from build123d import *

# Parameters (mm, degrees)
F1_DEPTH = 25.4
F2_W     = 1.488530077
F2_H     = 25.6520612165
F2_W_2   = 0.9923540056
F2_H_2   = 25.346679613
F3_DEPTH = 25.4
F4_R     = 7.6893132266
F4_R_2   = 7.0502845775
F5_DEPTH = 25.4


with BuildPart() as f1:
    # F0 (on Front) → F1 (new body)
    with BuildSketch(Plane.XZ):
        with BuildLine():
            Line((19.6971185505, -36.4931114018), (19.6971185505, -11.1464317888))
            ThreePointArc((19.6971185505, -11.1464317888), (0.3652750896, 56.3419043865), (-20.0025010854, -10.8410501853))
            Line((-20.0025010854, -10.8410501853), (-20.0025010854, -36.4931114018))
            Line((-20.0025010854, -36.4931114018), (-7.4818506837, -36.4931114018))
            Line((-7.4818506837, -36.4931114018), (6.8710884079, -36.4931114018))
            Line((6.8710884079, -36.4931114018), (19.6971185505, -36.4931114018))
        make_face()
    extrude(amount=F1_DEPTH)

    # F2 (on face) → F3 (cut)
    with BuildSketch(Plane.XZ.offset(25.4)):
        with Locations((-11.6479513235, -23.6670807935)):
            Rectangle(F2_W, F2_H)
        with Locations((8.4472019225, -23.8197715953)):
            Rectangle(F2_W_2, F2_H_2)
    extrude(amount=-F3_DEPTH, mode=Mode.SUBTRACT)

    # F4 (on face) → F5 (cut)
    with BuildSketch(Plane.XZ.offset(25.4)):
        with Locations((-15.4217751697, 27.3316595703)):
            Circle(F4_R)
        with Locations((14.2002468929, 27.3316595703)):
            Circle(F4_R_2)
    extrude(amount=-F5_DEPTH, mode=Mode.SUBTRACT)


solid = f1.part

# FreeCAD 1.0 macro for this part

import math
import FreeCAD as App
import Part
import Sketcher

V = App.Vector
Q = App.Units.Quantity

doc = App.newDocument("Part")
params = doc.addObject("Spreadsheet::Sheet", "Params")
for row, (alias, value) in enumerate([
    ("pad1_length", "1 in"),
    ("pocket1_length", "1 in"),
    ("pocket2_length", "1 in"),
], start=1):
    params.set(f"A{row}", alias)
    params.set(f"B{row}", "=" + value)
    params.setAlias(f"B{row}", alias)

body = doc.addObject("PartDesign::Body", "Body")

sketch1 = doc.addObject("Sketcher::SketchObject", "Sketch")
body.addObject(sketch1)
sketch1.AttachmentSupport = (doc.XZ_Plane, [""])
sketch1.MapMode = "FlatFace"
sketch1.addGeometry(Part.LineSegment(V(20, -36, 0), V(20, -11, 0)), False)
sketch1.addGeometry(Part.ArcOfCircle(Part.Circle(V(0, 20, 0), V(0, 0, 1), 37), math.radians(-58), math.radians(237)), False)
sketch1.addGeometry(Part.LineSegment(V(-20, -11, 0), V(-20, -36, 0)), False)
sketch1.addGeometry(Part.LineSegment(V(-20, -36, 0), V(20, -36, 0)), False)
sketch1.addConstraint(Sketcher.Constraint("Coincident", 0, 2, 1, 1))
sketch1.addConstraint(Sketcher.Constraint("Coincident", 1, 2, 2, 1))
sketch1.addConstraint(Sketcher.Constraint("Coincident", 2, 2, 3, 1))
sketch1.addConstraint(Sketcher.Constraint("Coincident", 3, 2, 0, 1))
sketch1.addConstraint(Sketcher.Constraint("Vertical", 0))
sketch1.addConstraint(Sketcher.Constraint("Vertical", 2))
sketch1.addConstraint(Sketcher.Constraint("Horizontal", 3))
sketch1.addConstraint(Sketcher.Constraint("Radius", 1, Q("36.594658 mm")))
sketch1.addConstraint(Sketcher.Constraint("DistanceX", 1, 2, -1, 1, Q("0.7875 in")))
sketch1.addConstraint(Sketcher.Constraint("DistanceX", 3, 1, 3, 2, Q("39.69962 mm")))
sketch1.addConstraint(Sketcher.Constraint("DistanceY", 0, 1, 0, 2, Q("25.34668 mm")))
sketch1.addConstraint(Sketcher.Constraint("DistanceY", 2, 2, 2, 1, Q("25.652061 mm")))
sketch1.addConstraint(Sketcher.Constraint("DistanceY", -1, 1, 1, 3, Q("19.748329 mm")))
pad1 = doc.addObject("PartDesign::Pad", "Pad")
body.addObject(pad1)
pad1.Profile = sketch1
pad1.setExpression("Length", "Params.pad1_length")

sketch2 = doc.addObject("Sketcher::SketchObject", "Sketch001")
body.addObject(sketch2)
sketch2.AttachmentSupport = (doc.XZ_Plane, [""])
sketch2.MapMode = "FlatFace"
sketch2.AttachmentOffset = App.Placement(V(0, 0, 1 * 25.4), App.Rotation())
sketch2.addGeometry(Part.LineSegment(V(-12.4, -10.8, 0), V(-12.4, -36.5, 0)), False)
sketch2.addGeometry(Part.LineSegment(V(-12.4, -36.5, 0), V(-10.9, -36.5, 0)), False)
sketch2.addGeometry(Part.LineSegment(V(-10.9, -36.5, 0), V(-10.9, -10.8, 0)), False)
sketch2.addGeometry(Part.LineSegment(V(-10.9, -10.8, 0), V(-12.4, -10.8, 0)), False)
sketch2.addGeometry(Part.LineSegment(V(8, -11.1, 0), V(8, -36.5, 0)), False)
sketch2.addGeometry(Part.LineSegment(V(8, -36.5, 0), V(8.9, -36.5, 0)), False)
sketch2.addGeometry(Part.LineSegment(V(8.9, -36.5, 0), V(8.9, -11.1, 0)), False)
sketch2.addGeometry(Part.LineSegment(V(8.9, -11.1, 0), V(8, -11.1, 0)), False)
sketch2.addConstraint(Sketcher.Constraint("Coincident", 0, 2, 1, 1))
sketch2.addConstraint(Sketcher.Constraint("Coincident", 1, 2, 2, 1))
sketch2.addConstraint(Sketcher.Constraint("Coincident", 2, 2, 3, 1))
sketch2.addConstraint(Sketcher.Constraint("Coincident", 3, 2, 0, 1))
sketch2.addConstraint(Sketcher.Constraint("Coincident", 4, 2, 5, 1))
sketch2.addConstraint(Sketcher.Constraint("Coincident", 5, 2, 6, 1))
sketch2.addConstraint(Sketcher.Constraint("Coincident", 6, 2, 7, 1))
sketch2.addConstraint(Sketcher.Constraint("Coincident", 7, 2, 4, 1))
sketch2.addConstraint(Sketcher.Constraint("Vertical", 0))
sketch2.addConstraint(Sketcher.Constraint("Horizontal", 1))
sketch2.addConstraint(Sketcher.Constraint("Vertical", 2))
sketch2.addConstraint(Sketcher.Constraint("Horizontal", 3))
sketch2.addConstraint(Sketcher.Constraint("Vertical", 4))
sketch2.addConstraint(Sketcher.Constraint("Horizontal", 5))
sketch2.addConstraint(Sketcher.Constraint("Vertical", 6))
sketch2.addConstraint(Sketcher.Constraint("Horizontal", 7))
sketch2.addConstraint(Sketcher.Constraint("Horizontal", 1, 2, 4, 2))
sketch2.addConstraint(Sketcher.Constraint("DistanceX", 1, 1, 1, 2, Q("1.48853 mm")))
sketch2.addConstraint(Sketcher.Constraint("DistanceY", 0, 2, 0, 1, Q("25.652061 mm")))
sketch2.addConstraint(Sketcher.Constraint("DistanceY", 4, 2, 4, 1, Q("25.34668 mm")))
sketch2.addConstraint(Sketcher.Constraint("DistanceX", 5, 1, 5, 2, Q("0.992354 mm")))
sketch2.addConstraint(Sketcher.Constraint("DistanceY", 0, 2, -1, 1, Q("36.493111 mm")))
sketch2.addConstraint(Sketcher.Constraint("DistanceX", -1, 1, 5, 2, Q("8.943379 mm")))
sketch2.addConstraint(Sketcher.Constraint("DistanceX", 1, 2, 4, 2, Q("18.854711 mm")))
pocket1 = doc.addObject("PartDesign::Pocket", "Pocket")
body.addObject(pocket1)
pocket1.Profile = sketch2
pocket1.setExpression("Length", "Params.pocket1_length")

sketch3 = doc.addObject("Sketcher::SketchObject", "Sketch002")
body.addObject(sketch3)
sketch3.AttachmentSupport = (doc.XZ_Plane, [""])
sketch3.MapMode = "FlatFace"
sketch3.AttachmentOffset = App.Placement(V(0, 0, 1 * 25.4), App.Rotation())
sketch3.addGeometry(Part.Circle(V(-15, 27, 0), V(0, 0, 1), 8), False)
sketch3.addGeometry(Part.Circle(V(14, 27, 0), V(0, 0, 1), 7), False)
sketch3.addConstraint(Sketcher.Constraint("Horizontal", 0, 3, 1, 3))
sketch3.addConstraint(Sketcher.Constraint("Diameter", 1, Q("14.100569 mm")))
sketch3.addConstraint(Sketcher.Constraint("Diameter", 0, Q("15.378626 mm")))
sketch3.addConstraint(Sketcher.Constraint("DistanceY", -1, 1, 0, 3, Q("27.33166 mm")))
sketch3.addConstraint(Sketcher.Constraint("DistanceX", 0, 3, -1, 1, Q("15.421775 mm")))
sketch3.addConstraint(Sketcher.Constraint("DistanceX", -1, 1, 1, 3, Q("14.200247 mm")))
pocket2 = doc.addObject("PartDesign::Pocket", "Pocket001")
body.addObject(pocket2)
pocket2.Profile = sketch3
pocket2.setExpression("Length", "Params.pocket2_length")

doc.recompute()
